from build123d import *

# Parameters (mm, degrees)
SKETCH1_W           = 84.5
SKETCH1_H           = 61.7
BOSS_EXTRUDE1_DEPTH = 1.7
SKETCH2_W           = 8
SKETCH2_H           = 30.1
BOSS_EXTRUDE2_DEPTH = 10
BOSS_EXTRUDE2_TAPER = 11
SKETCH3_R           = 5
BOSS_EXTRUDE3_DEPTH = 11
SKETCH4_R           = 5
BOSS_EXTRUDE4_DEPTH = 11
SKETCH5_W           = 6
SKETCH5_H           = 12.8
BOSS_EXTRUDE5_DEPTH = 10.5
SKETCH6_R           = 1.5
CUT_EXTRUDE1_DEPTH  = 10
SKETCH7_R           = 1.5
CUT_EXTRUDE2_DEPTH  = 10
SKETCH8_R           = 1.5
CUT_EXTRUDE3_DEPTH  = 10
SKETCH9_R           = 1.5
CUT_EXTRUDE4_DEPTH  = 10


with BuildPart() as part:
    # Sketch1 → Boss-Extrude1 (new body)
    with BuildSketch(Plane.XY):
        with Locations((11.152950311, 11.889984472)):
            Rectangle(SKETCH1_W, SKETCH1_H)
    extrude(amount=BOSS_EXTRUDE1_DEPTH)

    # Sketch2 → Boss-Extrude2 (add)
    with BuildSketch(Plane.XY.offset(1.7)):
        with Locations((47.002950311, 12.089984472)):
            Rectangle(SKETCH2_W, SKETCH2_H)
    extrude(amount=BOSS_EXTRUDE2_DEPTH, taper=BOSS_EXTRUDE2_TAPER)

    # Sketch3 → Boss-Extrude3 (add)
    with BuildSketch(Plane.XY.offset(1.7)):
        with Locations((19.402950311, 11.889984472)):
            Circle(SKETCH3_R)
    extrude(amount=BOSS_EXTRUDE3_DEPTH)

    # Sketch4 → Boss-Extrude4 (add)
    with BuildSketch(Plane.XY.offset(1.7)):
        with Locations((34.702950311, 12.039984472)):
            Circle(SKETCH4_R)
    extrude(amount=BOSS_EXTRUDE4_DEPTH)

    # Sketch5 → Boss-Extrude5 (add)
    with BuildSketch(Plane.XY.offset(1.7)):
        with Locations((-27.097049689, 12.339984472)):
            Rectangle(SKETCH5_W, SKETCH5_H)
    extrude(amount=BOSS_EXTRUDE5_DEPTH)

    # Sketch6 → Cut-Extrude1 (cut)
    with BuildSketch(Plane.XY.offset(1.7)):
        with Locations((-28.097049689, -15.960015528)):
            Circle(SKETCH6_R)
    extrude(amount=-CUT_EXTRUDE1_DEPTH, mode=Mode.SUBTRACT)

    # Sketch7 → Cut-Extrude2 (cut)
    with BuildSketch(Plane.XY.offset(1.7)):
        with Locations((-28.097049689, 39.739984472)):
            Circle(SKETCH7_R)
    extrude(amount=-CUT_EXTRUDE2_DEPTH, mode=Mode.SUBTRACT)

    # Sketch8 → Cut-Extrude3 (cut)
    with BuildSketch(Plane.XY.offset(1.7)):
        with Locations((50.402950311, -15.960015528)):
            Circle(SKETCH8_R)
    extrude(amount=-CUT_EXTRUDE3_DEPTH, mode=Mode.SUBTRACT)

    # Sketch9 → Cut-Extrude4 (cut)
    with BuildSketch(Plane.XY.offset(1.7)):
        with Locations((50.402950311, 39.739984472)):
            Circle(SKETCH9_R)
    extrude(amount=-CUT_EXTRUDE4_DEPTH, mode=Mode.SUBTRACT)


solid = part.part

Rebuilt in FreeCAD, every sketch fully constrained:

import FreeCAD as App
import Part
import Sketcher

doc = App.newDocument("Part")
params = doc.addObject("Spreadsheet::Sheet", "Params")
for row, (alias, value) in enumerate([
    ("sketch1_width", "84.5 mm"),
    ("sketch1_height", "61.7 mm"),
    ("pad1_length", "1.7 mm"),
    ("sketch2_width", "8 mm"),
    ("sketch2_height", "30.1 mm"),
    ("pad2_length", "10 mm"),
    ("pad2_taper", "-11 deg"),
    ("sketch3_diameter", "10 mm"),
    ("pad3_length", "11 mm"),
    ("sketch4_diameter", "10 mm"),
    ("pad4_length", "11 mm"),
    ("sketch5_width", "6 mm"),
    ("sketch5_height", "12.8 mm"),
    ("pad5_length", "10.5 mm"),
    ("sketch6_diameter", "3 mm"),
    ("pocket1_length", "10 mm"),
    ("sketch7_diameter", "3 mm"),
    ("pocket2_length", "10 mm"),
    ("sketch8_diameter", "3 mm"),
    ("pocket3_length", "10 mm"),
    ("sketch9_diameter", "3 mm"),
    ("pocket4_length", "10 mm"),
], start=1):
    params.set(f"A{row}", alias)
    params.set(f"B{row}", "=" + value)
    params.setAlias(f"B{row}", alias)

body = doc.addObject("PartDesign::Body", "Body")

sketch1 = body.newObject("Sketcher::SketchObject", "Sketch")
sketch1.AttachmentSupport = (doc.getObject("XY_Plane"), [""])
sketch1.MapMode = "FlatFace"
sketch1.addGeometry([
    Part.LineSegment(App.Vector(-31.09705, 42.739984, 0), App.Vector(-31.09705, -18.960016, 0)),
    Part.LineSegment(App.Vector(-31.09705, -18.960016, 0), App.Vector(53.40295, -18.960016, 0)),
    Part.LineSegment(App.Vector(53.40295, -18.960016, 0), App.Vector(53.40295, 42.739984, 0)),
    Part.LineSegment(App.Vector(53.40295, 42.739984, 0), App.Vector(-31.09705, 42.739984, 0)),
], False)
sketch1.addConstraint([
    Sketcher.Constraint("Coincident", 0, 2, 1, 1),
    Sketcher.Constraint("Coincident", 1, 2, 2, 1),
    Sketcher.Constraint("Coincident", 2, 2, 3, 1),
    Sketcher.Constraint("Coincident", 3, 2, 0, 1),
    Sketcher.Constraint("Vertical", 0),
    Sketcher.Constraint("Horizontal", 1),
    Sketcher.Constraint("Vertical", 2),
    Sketcher.Constraint("Horizontal", 3),
    Sketcher.Constraint("DistanceX", 1, 1, 1, 2, 84.5),
    Sketcher.Constraint("DistanceY", 0, 2, 0, 1, 61.7),
    Sketcher.Constraint("DistanceX", 0, 2, -1, 1, 31.09705),
    Sketcher.Constraint("DistanceY", 0, 2, -1, 1, 18.960016),
])
sketch1.setExpression("Constraints[8]", "Params.sketch1_width")
sketch1.setExpression("Constraints[9]", "Params.sketch1_height")
pad1 = body.newObject("PartDesign::Pad", "Pad")
pad1.Profile = sketch1
pad1.setExpression("Length", "Params.pad1_length")

sketch2 = body.newObject("Sketcher::SketchObject", "Sketch001")
sketch2.AttachmentSupport = (doc.getObject("XY_Plane"), [""])
sketch2.MapMode = "FlatFace"
sketch2.AttachmentOffset = App.Placement(App.Vector(0, 0, 1.7), App.Rotation())
sketch2.addGeometry([
    Part.LineSegment(App.Vector(43.00295, 27.139984, 0), App.Vector(43.00295, -2.960016, 0)),
    Part.LineSegment(App.Vector(43.00295, -2.960016, 0), App.Vector(51.00295, -2.960016, 0)),
    Part.LineSegment(App.Vector(51.00295, -2.960016, 0), App.Vector(51.00295, 27.139984, 0)),
    Part.LineSegment(App.Vector(51.00295, 27.139984, 0), App.Vector(43.00295, 27.139984, 0)),
], False)
sketch2.addConstraint([
    Sketcher.Constraint("Coincident", 0, 2, 1, 1),
    Sketcher.Constraint("Coincident", 1, 2, 2, 1),
    Sketcher.Constraint("Coincident", 2, 2, 3, 1),
    Sketcher.Constraint("Coincident", 3, 2, 0, 1),
    Sketcher.Constraint("Vertical", 0),
    Sketcher.Constraint("Horizontal", 1),
    Sketcher.Constraint("Vertical", 2),
    Sketcher.Constraint("Horizontal", 3),
    Sketcher.Constraint("DistanceX", 1, 1, 1, 2, 8.0),
    Sketcher.Constraint("DistanceY", 0, 2, 0, 1, 30.1),
    Sketcher.Constraint("DistanceX", -1, 1, 0, 2, 43.00295),
    Sketcher.Constraint("DistanceY", 0, 2, -1, 1, 2.960016),
])
sketch2.setExpression("Constraints[8]", "Params.sketch2_width")
sketch2.setExpression("Constraints[9]", "Params.sketch2_height")
pad2 = body.newObject("PartDesign::Pad", "Pad001")
pad2.Profile = sketch2
pad2.setExpression("Length", "Params.pad2_length")
pad2.setExpression("TaperAngle", "Params.pad2_taper")

sketch3 = body.newObject("Sketcher::SketchObject", "Sketch002")
sketch3.AttachmentSupport = (doc.getObject("XY_Plane"), [""])
sketch3.MapMode = "FlatFace"
sketch3.AttachmentOffset = App.Placement(App.Vector(0, 0, 1.7), App.Rotation())
sketch3.addGeometry(Part.Circle(App.Vector(19.40295, 11.889984, 0), App.Vector(0, 0, 1), 5), False)
sketch3.addConstraint([
    Sketcher.Constraint("Diameter", 0, 10.0),
    Sketcher.Constraint("DistanceX", -1, 1, 0, 3, 19.40295),
    Sketcher.Constraint("DistanceY", -1, 1, 0, 3, 11.889984),
])
sketch3.setExpression("Constraints[0]", "Params.sketch3_diameter")
pad3 = body.newObject("PartDesign::Pad", "Pad002")
pad3.Profile = sketch3
pad3.setExpression("Length", "Params.pad3_length")

sketch4 = body.newObject("Sketcher::SketchObject", "Sketch003")
sketch4.AttachmentSupport = (doc.getObject("XY_Plane"), [""])
sketch4.MapMode = "FlatFace"
sketch4.AttachmentOffset = App.Placement(App.Vector(0, 0, 1.7), App.Rotation())
sketch4.addGeometry(Part.Circle(App.Vector(34.70295, 12.039984, 0), App.Vector(0, 0, 1), 5), False)
sketch4.addConstraint([
    Sketcher.Constraint("Diameter", 0, 10.0),
    Sketcher.Constraint("DistanceX", -1, 1, 0, 3, 34.70295),
    Sketcher.Constraint("DistanceY", -1, 1, 0, 3, 12.039984),
])
sketch4.setExpression("Constraints[0]", "Params.sketch4_diameter")
pad4 = body.newObject("PartDesign::Pad", "Pad003")
pad4.Profile = sketch4
pad4.setExpression("Length", "Params.pad4_length")

sketch5 = body.newObject("Sketcher::SketchObject", "Sketch004")
sketch5.AttachmentSupport = (doc.getObject("XY_Plane"), [""])
sketch5.MapMode = "FlatFace"
sketch5.AttachmentOffset = App.Placement(App.Vector(0, 0, 1.7), App.Rotation())
sketch5.addGeometry([
    Part.LineSegment(App.Vector(-30.09705, 18.739984, 0), App.Vector(-30.09705, 5.939984, 0)),
    Part.LineSegment(App.Vector(-30.09705, 5.939984, 0), App.Vector(-24.09705, 5.939984, 0)),
    Part.LineSegment(App.Vector(-24.09705, 5.939984, 0), App.Vector(-24.09705, 18.739984, 0)),
    Part.LineSegment(App.Vector(-24.09705, 18.739984, 0), App.Vector(-30.09705, 18.739984, 0)),
], False)
sketch5.addConstraint([
    Sketcher.Constraint("Coincident", 0, 2, 1, 1),
    Sketcher.Constraint("Coincident", 1, 2, 2, 1),
    Sketcher.Constraint("Coincident", 2, 2, 3, 1),
    Sketcher.Constraint("Coincident", 3, 2, 0, 1),
    Sketcher.Constraint("Vertical", 0),
    Sketcher.Constraint("Horizontal", 1),
    Sketcher.Constraint("Vertical", 2),
    Sketcher.Constraint("Horizontal", 3),
    Sketcher.Constraint("DistanceX", 1, 1, 1, 2, 6.0),
    Sketcher.Constraint("DistanceY", 0, 2, 0, 1, 12.8),
    Sketcher.Constraint("DistanceX", 0, 2, -1, 1, 30.09705),
    Sketcher.Constraint("DistanceY", -1, 1, 0, 2, 5.939984),
])
sketch5.setExpression("Constraints[8]", "Params.sketch5_width")
sketch5.setExpression("Constraints[9]", "Params.sketch5_height")
pad5 = body.newObject("PartDesign::Pad", "Pad004")
pad5.Profile = sketch5
pad5.setExpression("Length", "Params.pad5_length")

sketch6 = body.newObject("Sketcher::SketchObject", "Sketch005")
sketch6.AttachmentSupport = (doc.getObject("XY_Plane"), [""])
sketch6.MapMode = "FlatFace"
sketch6.AttachmentOffset = App.Placement(App.Vector(0, 0, 1.7), App.Rotation())
sketch6.addGeometry(Part.Circle(App.Vector(-28.09705, -15.960016, 0), App.Vector(0, 0, 1), 1.5), False)
sketch6.addConstraint([
    Sketcher.Constraint("Diameter", 0, 3.0),
    Sketcher.Constraint("DistanceX", 0, 3, -1, 1, 28.09705),
    Sketcher.Constraint("DistanceY", 0, 3, -1, 1, 15.960016),
])
sketch6.setExpression("Constraints[0]", "Params.sketch6_diameter")
pocket1 = body.newObject("PartDesign::Pocket", "Pocket")
pocket1.Profile = sketch6
pocket1.setExpression("Length", "Params.pocket1_length")

sketch7 = body.newObject("Sketcher::SketchObject", "Sketch006")
sketch7.AttachmentSupport = (doc.getObject("XY_Plane"), [""])
sketch7.MapMode = "FlatFace"
sketch7.AttachmentOffset = App.Placement(App.Vector(0, 0, 1.7), App.Rotation())
sketch7.addGeometry(Part.Circle(App.Vector(-28.09705, 39.739984, 0), App.Vector(0, 0, 1), 1.5), False)
sketch7.addConstraint([
    Sketcher.Constraint("Diameter", 0, 3.0),
    Sketcher.Constraint("DistanceX", 0, 3, -1, 1, 28.09705),
    Sketcher.Constraint("DistanceY", -1, 1, 0, 3, 39.739984),
])
sketch7.setExpression("Constraints[0]", "Params.sketch7_diameter")
pocket2 = body.newObject("PartDesign::Pocket", "Pocket001")
pocket2.Profile = sketch7
pocket2.setExpression("Length", "Params.pocket2_length")

sketch8 = body.newObject("Sketcher::SketchObject", "Sketch007")
sketch8.AttachmentSupport = (doc.getObject("XY_Plane"), [""])
sketch8.MapMode = "FlatFace"
sketch8.AttachmentOffset = App.Placement(App.Vector(0, 0, 1.7), App.Rotation())
sketch8.addGeometry(Part.Circle(App.Vector(50.40295, -15.960016, 0), App.Vector(0, 0, 1), 1.5), False)
sketch8.addConstraint([
    Sketcher.Constraint("Diameter", 0, 3.0),
    Sketcher.Constraint("DistanceX", -1, 1, 0, 3, 50.40295),
    Sketcher.Constraint("DistanceY", 0, 3, -1, 1, 15.960016),
])
sketch8.setExpression("Constraints[0]", "Params.sketch8_diameter")
pocket3 = body.newObject("PartDesign::Pocket", "Pocket002")
pocket3.Profile = sketch8
pocket3.setExpression("Length", "Params.pocket3_length")

sketch9 = body.newObject("Sketcher::SketchObject", "Sketch008")
sketch9.AttachmentSupport = (doc.getObject("XY_Plane"), [""])
sketch9.MapMode = "FlatFace"
sketch9.AttachmentOffset = App.Placement(App.Vector(0, 0, 1.7), App.Rotation())
sketch9.addGeometry(Part.Circle(App.Vector(50.40295, 39.739984, 0), App.Vector(0, 0, 1), 1.5), False)
sketch9.addConstraint([
    Sketcher.Constraint("Diameter", 0, 3.0),
    Sketcher.Constraint("DistanceX", -1, 1, 0, 3, 50.40295),
    Sketcher.Constraint("DistanceY", -1, 1, 0, 3, 39.739984),
])
sketch9.setExpression("Constraints[0]", "Params.sketch9_diameter")
pocket4 = body.newObject("PartDesign::Pocket", "Pocket003")
pocket4.Profile = sketch9
pocket4.setExpression("Length", "Params.pocket4_length")

doc.recompute()
